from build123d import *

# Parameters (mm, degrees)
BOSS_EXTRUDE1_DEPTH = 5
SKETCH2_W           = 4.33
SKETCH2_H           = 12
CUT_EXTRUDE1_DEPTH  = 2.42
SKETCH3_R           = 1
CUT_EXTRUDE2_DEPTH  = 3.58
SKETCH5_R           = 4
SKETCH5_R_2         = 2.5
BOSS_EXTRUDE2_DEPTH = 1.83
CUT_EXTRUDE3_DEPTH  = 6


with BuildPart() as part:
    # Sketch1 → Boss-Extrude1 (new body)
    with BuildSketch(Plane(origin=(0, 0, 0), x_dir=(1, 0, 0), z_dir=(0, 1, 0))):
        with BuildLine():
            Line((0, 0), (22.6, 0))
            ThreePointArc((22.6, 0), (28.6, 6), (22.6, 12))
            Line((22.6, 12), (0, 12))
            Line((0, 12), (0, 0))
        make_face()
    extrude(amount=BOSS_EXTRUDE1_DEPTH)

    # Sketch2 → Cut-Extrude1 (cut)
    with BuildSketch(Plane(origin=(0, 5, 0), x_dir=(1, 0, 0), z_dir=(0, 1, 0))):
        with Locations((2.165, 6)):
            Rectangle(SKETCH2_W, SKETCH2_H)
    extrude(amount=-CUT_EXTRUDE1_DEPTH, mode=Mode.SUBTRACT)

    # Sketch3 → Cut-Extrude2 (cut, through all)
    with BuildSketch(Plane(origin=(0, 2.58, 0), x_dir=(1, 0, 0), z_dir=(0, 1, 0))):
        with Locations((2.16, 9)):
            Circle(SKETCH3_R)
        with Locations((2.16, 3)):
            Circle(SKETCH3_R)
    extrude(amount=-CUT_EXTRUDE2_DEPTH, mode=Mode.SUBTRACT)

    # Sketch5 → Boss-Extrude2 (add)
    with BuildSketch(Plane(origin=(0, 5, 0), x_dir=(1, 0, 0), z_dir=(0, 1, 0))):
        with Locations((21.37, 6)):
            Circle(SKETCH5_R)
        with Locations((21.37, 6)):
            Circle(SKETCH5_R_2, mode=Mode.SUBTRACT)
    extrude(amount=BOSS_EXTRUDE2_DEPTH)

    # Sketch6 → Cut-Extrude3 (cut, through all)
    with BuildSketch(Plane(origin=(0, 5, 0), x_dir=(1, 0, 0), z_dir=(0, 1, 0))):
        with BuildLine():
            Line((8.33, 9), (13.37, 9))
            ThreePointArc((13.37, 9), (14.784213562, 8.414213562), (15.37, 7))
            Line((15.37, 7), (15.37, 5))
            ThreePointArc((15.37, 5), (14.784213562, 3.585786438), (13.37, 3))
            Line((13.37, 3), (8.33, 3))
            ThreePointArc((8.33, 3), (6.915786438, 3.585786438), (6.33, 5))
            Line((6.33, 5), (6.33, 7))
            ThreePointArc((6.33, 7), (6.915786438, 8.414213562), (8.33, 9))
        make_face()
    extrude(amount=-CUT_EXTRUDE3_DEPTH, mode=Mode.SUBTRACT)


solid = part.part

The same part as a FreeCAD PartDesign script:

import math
import FreeCAD as App
import Part
import Sketcher
Q = App.Units.Quantity


def add_polygon(sketch, points):
    """Adds a closed chain of lines whose ends are joined by coincident constraints."""
    first, n = sketch.GeometryCount, len(points)
    for a, b in zip(points, points[1:] + points[:1]):
        sketch.addGeometry(Part.LineSegment(App.Vector(*a, 0), App.Vector(*b, 0)), False)
    for i in range(n):
        sketch.addConstraint(Sketcher.Constraint("Coincident", first + i, 2, first + (i + 1) % n, 1))

doc = App.newDocument("Part")
params = doc.addObject("Spreadsheet::Sheet", "Params")
for row, (alias, value) in enumerate([
    ("sketch1_radius", "6 mm"),
    ("sketch1_width", "22.6 mm"),
    ("pad1_length", "5 mm"),
    ("sketch2_height", "12 mm"),
    ("sketch2_width", "4.33 mm"),
    ("pocket1_length", "2.42 mm"),
    ("sketch3_diameter", "2 mm"),
    ("sketch4_diameter", "8 mm"),
    ("sketch4_diameter2", "5 mm"),
    ("pad2_length", "1.83 mm"),
    ("sketch5_radius", "2 mm"),
    ("sketch5_height", "2 mm"),
    ("sketch5_width", "5.04 mm"),
], start=1):
    params.set(f"A{row}", alias)
    params.set(f"B{row}", "=" + value)
    params.setAlias(f"B{row}", alias)

body = doc.addObject("PartDesign::Body", "Body")

# Sketch on XZ plane
sketch1 = body.newObject("Sketcher::SketchObject", "Sketch")
sketch1.AttachmentSupport = (doc.getObject("XZ_Plane"), [""])
sketch1.MapMode = "FlatFace"
sketch1.addGeometry(Part.LineSegment(App.Vector(0, 0, 0), App.Vector(23, 0, 0)), False)
sketch1.addGeometry(Part.ArcOfCircle(Part.Circle(App.Vector(23, -6, 0), App.Vector(0, 0, 1), 6), math.radians(-90), math.radians(90)), False)
sketch1.addGeometry(Part.LineSegment(App.Vector(23, -12, 0), App.Vector(0, -12, 0)), False)
sketch1.addGeometry(Part.LineSegment(App.Vector(0, -12, 0), App.Vector(0, 0, 0)), False)
sketch1.addConstraint(Sketcher.Constraint("Tangent", 0, 2, 1, 2))
sketch1.addConstraint(Sketcher.Constraint("Tangent", 1, 1, 2, 1))
sketch1.addConstraint(Sketcher.Constraint("Coincident", 2, 2, 3, 1))
sketch1.addConstraint(Sketcher.Constraint("Coincident", 3, 2, 0, 1))
sketch1.addConstraint(Sketcher.Constraint("Horizontal", 0))
sketch1.addConstraint(Sketcher.Constraint("Horizontal", 2))
sketch1.addConstraint(Sketcher.Constraint("Vertical", 3))
sketch1.addConstraint(Sketcher.Constraint("Coincident", 3, 2, -1, 1))
sketch1.addConstraint(Sketcher.Constraint("Radius", 1, Q("6 mm")))
sketch1.addConstraint(Sketcher.Constraint("DistanceX", 0, 1, 0, 2, Q("22.6 mm")))
sketch1.setExpression("Constraints[8]", "Params.sketch1_radius")
sketch1.setExpression("Constraints[9]", "Params.sketch1_width")
pad1 = body.newObject("PartDesign::Pad", "Pad")
pad1.Profile = sketch1
pad1.setExpression("Length", "Params.pad1_length")
pad1.Reversed = True

# Sketch on XZ plane
sketch2 = body.newObject("Sketcher::SketchObject", "Sketch001")
sketch2.AttachmentSupport = (doc.getObject("XZ_Plane"), [""])
sketch2.MapMode = "FlatFace"
sketch2.AttachmentOffset = App.Placement(App.Vector(0, 0, -5), App.Rotation())
add_polygon(sketch2, [(0, -12), (0, 0), (4.3, 0), (4.3, -12)])  # lines 0-3
sketch2.addConstraint(Sketcher.Constraint("Vertical", 0))
sketch2.addConstraint(Sketcher.Constraint("Horizontal", 1))
sketch2.addConstraint(Sketcher.Constraint("Vertical", 2))
sketch2.addConstraint(Sketcher.Constraint("Horizontal", 3))
sketch2.addConstraint(Sketcher.Constraint("Coincident", 0, 2, -1, 1))
sketch2.addConstraint(Sketcher.Constraint("DistanceY", 0, 1, 0, 2, Q("12 mm")))
sketch2.addConstraint(Sketcher.Constraint("DistanceX", 1, 1, 1, 2, Q("4.33 mm")))
sketch2.setExpression("Constraints[9]", "Params.sketch2_height")
sketch2.setExpression("Constraints[10]", "Params.sketch2_width")
pocket1 = body.newObject("PartDesign::Pocket", "Pocket")
pocket1.Profile = sketch2
pocket1.setExpression("Length", "Params.pocket1_length")
pocket1.Reversed = True

# Sketch on XZ plane
sketch3 = body.newObject("Sketcher::SketchObject", "Sketch002")
sketch3.AttachmentSupport = (doc.getObject("XZ_Plane"), [""])
sketch3.MapMode = "FlatFace"
sketch3.AttachmentOffset = App.Placement(App.Vector(0, 0, -2.58), App.Rotation())
sketch3.addGeometry(Part.Circle(App.Vector(2.2, -9, 0), App.Vector(0, 0, 1), 1), False)
sketch3.addGeometry(Part.Circle(App.Vector(2.2, -3, 0), App.Vector(0, 0, 1), 1), False)
sketch3.addConstraint(Sketcher.Constraint("Equal", 0, 1))
sketch3.addConstraint(Sketcher.Constraint("Vertical", 0, 3, 1, 3))
sketch3.addConstraint(Sketcher.Constraint("Diameter", 0, Q("2 mm")))
sketch3.addConstraint(Sketcher.Constraint("DistanceY", 0, 3, -1, 1, Q("9 mm")))
sketch3.addConstraint(Sketcher.Constraint("DistanceY", 1, 3, -1, 1, Q("3 mm")))
sketch3.addConstraint(Sketcher.Constraint("DistanceX", -1, 1, 0, 3, Q("2.16 mm")))
sketch3.setExpression("Constraints[2]", "Params.sketch3_diameter")
pocket2 = body.newObject("PartDesign::Pocket", "Pocket001")
pocket2.Profile = sketch3
pocket2.Type = "ThroughAll"
pocket2.Reversed = True

# Sketch on XZ plane
sketch4 = body.newObject("Sketcher::SketchObject", "Sketch003")
sketch4.AttachmentSupport = (doc.getObject("XZ_Plane"), [""])
sketch4.MapMode = "FlatFace"
sketch4.AttachmentOffset = App.Placement(App.Vector(0, 0, -5), App.Rotation())
sketch4.addGeometry(Part.Circle(App.Vector(21.4, -6, 0), App.Vector(0, 0, 1), 4), False)
sketch4.addGeometry(Part.Circle(App.Vector(21.4, -6, 0), App.Vector(0, 0, 1), 2.5), False)
sketch4.addConstraint(Sketcher.Constraint("Coincident", 1, 3, 0, 3))
sketch4.addConstraint(Sketcher.Constraint("Diameter", 0, Q("8 mm")))
sketch4.addConstraint(Sketcher.Constraint("Diameter", 1, Q("5 mm")))
sketch4.addConstraint(Sketcher.Constraint("DistanceY", 0, 3, -1, 1, Q("6 mm")))
sketch4.addConstraint(Sketcher.Constraint("DistanceX", -1, 1, 0, 3, Q("21.37 mm")))
sketch4.setExpression("Constraints[1]", "Params.sketch4_diameter")
sketch4.setExpression("Constraints[2]", "Params.sketch4_diameter2")
pad2 = body.newObject("PartDesign::Pad", "Pad001")
pad2.Profile = sketch4
pad2.setExpression("Length", "Params.pad2_length")
pad2.Reversed = True

# Sketch on XZ plane
sketch5 = body.newObject("Sketcher::SketchObject", "Sketch004")
sketch5.AttachmentSupport = (doc.getObject("XZ_Plane"), [""])
sketch5.MapMode = "FlatFace"
sketch5.AttachmentOffset = App.Placement(App.Vector(0, 0, -5), App.Rotation())
sketch5.addGeometry(Part.LineSegment(App.Vector(13.4, -9, 0), App.Vector(8.3, -9, 0)), False)
sketch5.addGeometry(Part.ArcOfCircle(Part.Circle(App.Vector(8.3, -7, 0), App.Vector(0, 0, 1), 2), math.radians(-180), math.radians(-90)), False)
sketch5.addGeometry(Part.LineSegment(App.Vector(6.3, -7, 0), App.Vector(6.3, -5, 0)), False)
sketch5.addGeometry(Part.ArcOfCircle(Part.Circle(App.Vector(8.3, -5, 0), App.Vector(0, 0, 1), 2), math.radians(90), math.radians(180)), False)
sketch5.addGeometry(Part.LineSegment(App.Vector(8.3, -3, 0), App.Vector(13.4, -3, 0)), False)
sketch5.addGeometry(Part.ArcOfCircle(Part.Circle(App.Vector(13.4, -5, 0), App.Vector(0, 0, 1), 2), math.radians(0), math.radians(90)), False)
sketch5.addGeometry(Part.LineSegment(App.Vector(15.4, -5, 0), App.Vector(15.4, -7, 0)), False)
sketch5.addGeometry(Part.ArcOfCircle(Part.Circle(App.Vector(13.4, -7, 0), App.Vector(0, 0, 1), 2), math.radians(-90), math.radians(0)), False)
sketch5.addConstraint(Sketcher.Constraint("Tangent", 0, 2, 1, 2))
sketch5.addConstraint(Sketcher.Constraint("Tangent", 1, 1, 2, 1))
sketch5.addConstraint(Sketcher.Constraint("Tangent", 2, 2, 3, 2))
sketch5.addConstraint(Sketcher.Constraint("Tangent", 3, 1, 4, 1))
sketch5.addConstraint(Sketcher.Constraint("Tangent", 4, 2, 5, 2))
sketch5.addConstraint(Sketcher.Constraint("Tangent", 5, 1, 6, 1))
sketch5.addConstraint(Sketcher.Constraint("Tangent", 6, 2, 7, 2))
sketch5.addConstraint(Sketcher.Constraint("Tangent", 7, 1, 0, 1))
sketch5.addConstraint(Sketcher.Constraint("Horizontal", 0))
sketch5.addConstraint(Sketcher.Constraint("Vertical", 2))
sketch5.addConstraint(Sketcher.Constraint("Horizontal", 4))
sketch5.addConstraint(Sketcher.Constraint("Vertical", 6))
sketch5.addConstraint(Sketcher.Constraint("Equal", 1, 3))
sketch5.addConstraint(Sketcher.Constraint("Equal", 3, 5))
sketch5.addConstraint(Sketcher.Constraint("Equal", 5, 7))
sketch5.addConstraint(Sketcher.Constraint("Radius", 1, Q("2 mm")))
sketch5.addConstraint(Sketcher.Constraint("DistanceY", 2, 1, 2, 2, Q("2 mm")))
sketch5.addConstraint(Sketcher.Constraint("DistanceY", 1, 3, -1, 1, Q("7 mm")))
sketch5.addConstraint(Sketcher.Constraint("DistanceX", 0, 2, 0, 1, Q("5.04 mm")))
sketch5.addConstraint(Sketcher.Constraint("DistanceX", -1, 1, 1, 3, Q("8.33 mm")))
sketch5.setExpression("Constraints[15]", "Params.sketch5_radius")
sketch5.setExpression("Constraints[16]", "Params.sketch5_height")
sketch5.setExpression("Constraints[18]", "Params.sketch5_width")
pocket3 = body.newObject("PartDesign::Pocket", "Pocket002")
pocket3.Profile = sketch5
pocket3.Type = "ThroughAll"
pocket3.Reversed = True

doc.recompute()
